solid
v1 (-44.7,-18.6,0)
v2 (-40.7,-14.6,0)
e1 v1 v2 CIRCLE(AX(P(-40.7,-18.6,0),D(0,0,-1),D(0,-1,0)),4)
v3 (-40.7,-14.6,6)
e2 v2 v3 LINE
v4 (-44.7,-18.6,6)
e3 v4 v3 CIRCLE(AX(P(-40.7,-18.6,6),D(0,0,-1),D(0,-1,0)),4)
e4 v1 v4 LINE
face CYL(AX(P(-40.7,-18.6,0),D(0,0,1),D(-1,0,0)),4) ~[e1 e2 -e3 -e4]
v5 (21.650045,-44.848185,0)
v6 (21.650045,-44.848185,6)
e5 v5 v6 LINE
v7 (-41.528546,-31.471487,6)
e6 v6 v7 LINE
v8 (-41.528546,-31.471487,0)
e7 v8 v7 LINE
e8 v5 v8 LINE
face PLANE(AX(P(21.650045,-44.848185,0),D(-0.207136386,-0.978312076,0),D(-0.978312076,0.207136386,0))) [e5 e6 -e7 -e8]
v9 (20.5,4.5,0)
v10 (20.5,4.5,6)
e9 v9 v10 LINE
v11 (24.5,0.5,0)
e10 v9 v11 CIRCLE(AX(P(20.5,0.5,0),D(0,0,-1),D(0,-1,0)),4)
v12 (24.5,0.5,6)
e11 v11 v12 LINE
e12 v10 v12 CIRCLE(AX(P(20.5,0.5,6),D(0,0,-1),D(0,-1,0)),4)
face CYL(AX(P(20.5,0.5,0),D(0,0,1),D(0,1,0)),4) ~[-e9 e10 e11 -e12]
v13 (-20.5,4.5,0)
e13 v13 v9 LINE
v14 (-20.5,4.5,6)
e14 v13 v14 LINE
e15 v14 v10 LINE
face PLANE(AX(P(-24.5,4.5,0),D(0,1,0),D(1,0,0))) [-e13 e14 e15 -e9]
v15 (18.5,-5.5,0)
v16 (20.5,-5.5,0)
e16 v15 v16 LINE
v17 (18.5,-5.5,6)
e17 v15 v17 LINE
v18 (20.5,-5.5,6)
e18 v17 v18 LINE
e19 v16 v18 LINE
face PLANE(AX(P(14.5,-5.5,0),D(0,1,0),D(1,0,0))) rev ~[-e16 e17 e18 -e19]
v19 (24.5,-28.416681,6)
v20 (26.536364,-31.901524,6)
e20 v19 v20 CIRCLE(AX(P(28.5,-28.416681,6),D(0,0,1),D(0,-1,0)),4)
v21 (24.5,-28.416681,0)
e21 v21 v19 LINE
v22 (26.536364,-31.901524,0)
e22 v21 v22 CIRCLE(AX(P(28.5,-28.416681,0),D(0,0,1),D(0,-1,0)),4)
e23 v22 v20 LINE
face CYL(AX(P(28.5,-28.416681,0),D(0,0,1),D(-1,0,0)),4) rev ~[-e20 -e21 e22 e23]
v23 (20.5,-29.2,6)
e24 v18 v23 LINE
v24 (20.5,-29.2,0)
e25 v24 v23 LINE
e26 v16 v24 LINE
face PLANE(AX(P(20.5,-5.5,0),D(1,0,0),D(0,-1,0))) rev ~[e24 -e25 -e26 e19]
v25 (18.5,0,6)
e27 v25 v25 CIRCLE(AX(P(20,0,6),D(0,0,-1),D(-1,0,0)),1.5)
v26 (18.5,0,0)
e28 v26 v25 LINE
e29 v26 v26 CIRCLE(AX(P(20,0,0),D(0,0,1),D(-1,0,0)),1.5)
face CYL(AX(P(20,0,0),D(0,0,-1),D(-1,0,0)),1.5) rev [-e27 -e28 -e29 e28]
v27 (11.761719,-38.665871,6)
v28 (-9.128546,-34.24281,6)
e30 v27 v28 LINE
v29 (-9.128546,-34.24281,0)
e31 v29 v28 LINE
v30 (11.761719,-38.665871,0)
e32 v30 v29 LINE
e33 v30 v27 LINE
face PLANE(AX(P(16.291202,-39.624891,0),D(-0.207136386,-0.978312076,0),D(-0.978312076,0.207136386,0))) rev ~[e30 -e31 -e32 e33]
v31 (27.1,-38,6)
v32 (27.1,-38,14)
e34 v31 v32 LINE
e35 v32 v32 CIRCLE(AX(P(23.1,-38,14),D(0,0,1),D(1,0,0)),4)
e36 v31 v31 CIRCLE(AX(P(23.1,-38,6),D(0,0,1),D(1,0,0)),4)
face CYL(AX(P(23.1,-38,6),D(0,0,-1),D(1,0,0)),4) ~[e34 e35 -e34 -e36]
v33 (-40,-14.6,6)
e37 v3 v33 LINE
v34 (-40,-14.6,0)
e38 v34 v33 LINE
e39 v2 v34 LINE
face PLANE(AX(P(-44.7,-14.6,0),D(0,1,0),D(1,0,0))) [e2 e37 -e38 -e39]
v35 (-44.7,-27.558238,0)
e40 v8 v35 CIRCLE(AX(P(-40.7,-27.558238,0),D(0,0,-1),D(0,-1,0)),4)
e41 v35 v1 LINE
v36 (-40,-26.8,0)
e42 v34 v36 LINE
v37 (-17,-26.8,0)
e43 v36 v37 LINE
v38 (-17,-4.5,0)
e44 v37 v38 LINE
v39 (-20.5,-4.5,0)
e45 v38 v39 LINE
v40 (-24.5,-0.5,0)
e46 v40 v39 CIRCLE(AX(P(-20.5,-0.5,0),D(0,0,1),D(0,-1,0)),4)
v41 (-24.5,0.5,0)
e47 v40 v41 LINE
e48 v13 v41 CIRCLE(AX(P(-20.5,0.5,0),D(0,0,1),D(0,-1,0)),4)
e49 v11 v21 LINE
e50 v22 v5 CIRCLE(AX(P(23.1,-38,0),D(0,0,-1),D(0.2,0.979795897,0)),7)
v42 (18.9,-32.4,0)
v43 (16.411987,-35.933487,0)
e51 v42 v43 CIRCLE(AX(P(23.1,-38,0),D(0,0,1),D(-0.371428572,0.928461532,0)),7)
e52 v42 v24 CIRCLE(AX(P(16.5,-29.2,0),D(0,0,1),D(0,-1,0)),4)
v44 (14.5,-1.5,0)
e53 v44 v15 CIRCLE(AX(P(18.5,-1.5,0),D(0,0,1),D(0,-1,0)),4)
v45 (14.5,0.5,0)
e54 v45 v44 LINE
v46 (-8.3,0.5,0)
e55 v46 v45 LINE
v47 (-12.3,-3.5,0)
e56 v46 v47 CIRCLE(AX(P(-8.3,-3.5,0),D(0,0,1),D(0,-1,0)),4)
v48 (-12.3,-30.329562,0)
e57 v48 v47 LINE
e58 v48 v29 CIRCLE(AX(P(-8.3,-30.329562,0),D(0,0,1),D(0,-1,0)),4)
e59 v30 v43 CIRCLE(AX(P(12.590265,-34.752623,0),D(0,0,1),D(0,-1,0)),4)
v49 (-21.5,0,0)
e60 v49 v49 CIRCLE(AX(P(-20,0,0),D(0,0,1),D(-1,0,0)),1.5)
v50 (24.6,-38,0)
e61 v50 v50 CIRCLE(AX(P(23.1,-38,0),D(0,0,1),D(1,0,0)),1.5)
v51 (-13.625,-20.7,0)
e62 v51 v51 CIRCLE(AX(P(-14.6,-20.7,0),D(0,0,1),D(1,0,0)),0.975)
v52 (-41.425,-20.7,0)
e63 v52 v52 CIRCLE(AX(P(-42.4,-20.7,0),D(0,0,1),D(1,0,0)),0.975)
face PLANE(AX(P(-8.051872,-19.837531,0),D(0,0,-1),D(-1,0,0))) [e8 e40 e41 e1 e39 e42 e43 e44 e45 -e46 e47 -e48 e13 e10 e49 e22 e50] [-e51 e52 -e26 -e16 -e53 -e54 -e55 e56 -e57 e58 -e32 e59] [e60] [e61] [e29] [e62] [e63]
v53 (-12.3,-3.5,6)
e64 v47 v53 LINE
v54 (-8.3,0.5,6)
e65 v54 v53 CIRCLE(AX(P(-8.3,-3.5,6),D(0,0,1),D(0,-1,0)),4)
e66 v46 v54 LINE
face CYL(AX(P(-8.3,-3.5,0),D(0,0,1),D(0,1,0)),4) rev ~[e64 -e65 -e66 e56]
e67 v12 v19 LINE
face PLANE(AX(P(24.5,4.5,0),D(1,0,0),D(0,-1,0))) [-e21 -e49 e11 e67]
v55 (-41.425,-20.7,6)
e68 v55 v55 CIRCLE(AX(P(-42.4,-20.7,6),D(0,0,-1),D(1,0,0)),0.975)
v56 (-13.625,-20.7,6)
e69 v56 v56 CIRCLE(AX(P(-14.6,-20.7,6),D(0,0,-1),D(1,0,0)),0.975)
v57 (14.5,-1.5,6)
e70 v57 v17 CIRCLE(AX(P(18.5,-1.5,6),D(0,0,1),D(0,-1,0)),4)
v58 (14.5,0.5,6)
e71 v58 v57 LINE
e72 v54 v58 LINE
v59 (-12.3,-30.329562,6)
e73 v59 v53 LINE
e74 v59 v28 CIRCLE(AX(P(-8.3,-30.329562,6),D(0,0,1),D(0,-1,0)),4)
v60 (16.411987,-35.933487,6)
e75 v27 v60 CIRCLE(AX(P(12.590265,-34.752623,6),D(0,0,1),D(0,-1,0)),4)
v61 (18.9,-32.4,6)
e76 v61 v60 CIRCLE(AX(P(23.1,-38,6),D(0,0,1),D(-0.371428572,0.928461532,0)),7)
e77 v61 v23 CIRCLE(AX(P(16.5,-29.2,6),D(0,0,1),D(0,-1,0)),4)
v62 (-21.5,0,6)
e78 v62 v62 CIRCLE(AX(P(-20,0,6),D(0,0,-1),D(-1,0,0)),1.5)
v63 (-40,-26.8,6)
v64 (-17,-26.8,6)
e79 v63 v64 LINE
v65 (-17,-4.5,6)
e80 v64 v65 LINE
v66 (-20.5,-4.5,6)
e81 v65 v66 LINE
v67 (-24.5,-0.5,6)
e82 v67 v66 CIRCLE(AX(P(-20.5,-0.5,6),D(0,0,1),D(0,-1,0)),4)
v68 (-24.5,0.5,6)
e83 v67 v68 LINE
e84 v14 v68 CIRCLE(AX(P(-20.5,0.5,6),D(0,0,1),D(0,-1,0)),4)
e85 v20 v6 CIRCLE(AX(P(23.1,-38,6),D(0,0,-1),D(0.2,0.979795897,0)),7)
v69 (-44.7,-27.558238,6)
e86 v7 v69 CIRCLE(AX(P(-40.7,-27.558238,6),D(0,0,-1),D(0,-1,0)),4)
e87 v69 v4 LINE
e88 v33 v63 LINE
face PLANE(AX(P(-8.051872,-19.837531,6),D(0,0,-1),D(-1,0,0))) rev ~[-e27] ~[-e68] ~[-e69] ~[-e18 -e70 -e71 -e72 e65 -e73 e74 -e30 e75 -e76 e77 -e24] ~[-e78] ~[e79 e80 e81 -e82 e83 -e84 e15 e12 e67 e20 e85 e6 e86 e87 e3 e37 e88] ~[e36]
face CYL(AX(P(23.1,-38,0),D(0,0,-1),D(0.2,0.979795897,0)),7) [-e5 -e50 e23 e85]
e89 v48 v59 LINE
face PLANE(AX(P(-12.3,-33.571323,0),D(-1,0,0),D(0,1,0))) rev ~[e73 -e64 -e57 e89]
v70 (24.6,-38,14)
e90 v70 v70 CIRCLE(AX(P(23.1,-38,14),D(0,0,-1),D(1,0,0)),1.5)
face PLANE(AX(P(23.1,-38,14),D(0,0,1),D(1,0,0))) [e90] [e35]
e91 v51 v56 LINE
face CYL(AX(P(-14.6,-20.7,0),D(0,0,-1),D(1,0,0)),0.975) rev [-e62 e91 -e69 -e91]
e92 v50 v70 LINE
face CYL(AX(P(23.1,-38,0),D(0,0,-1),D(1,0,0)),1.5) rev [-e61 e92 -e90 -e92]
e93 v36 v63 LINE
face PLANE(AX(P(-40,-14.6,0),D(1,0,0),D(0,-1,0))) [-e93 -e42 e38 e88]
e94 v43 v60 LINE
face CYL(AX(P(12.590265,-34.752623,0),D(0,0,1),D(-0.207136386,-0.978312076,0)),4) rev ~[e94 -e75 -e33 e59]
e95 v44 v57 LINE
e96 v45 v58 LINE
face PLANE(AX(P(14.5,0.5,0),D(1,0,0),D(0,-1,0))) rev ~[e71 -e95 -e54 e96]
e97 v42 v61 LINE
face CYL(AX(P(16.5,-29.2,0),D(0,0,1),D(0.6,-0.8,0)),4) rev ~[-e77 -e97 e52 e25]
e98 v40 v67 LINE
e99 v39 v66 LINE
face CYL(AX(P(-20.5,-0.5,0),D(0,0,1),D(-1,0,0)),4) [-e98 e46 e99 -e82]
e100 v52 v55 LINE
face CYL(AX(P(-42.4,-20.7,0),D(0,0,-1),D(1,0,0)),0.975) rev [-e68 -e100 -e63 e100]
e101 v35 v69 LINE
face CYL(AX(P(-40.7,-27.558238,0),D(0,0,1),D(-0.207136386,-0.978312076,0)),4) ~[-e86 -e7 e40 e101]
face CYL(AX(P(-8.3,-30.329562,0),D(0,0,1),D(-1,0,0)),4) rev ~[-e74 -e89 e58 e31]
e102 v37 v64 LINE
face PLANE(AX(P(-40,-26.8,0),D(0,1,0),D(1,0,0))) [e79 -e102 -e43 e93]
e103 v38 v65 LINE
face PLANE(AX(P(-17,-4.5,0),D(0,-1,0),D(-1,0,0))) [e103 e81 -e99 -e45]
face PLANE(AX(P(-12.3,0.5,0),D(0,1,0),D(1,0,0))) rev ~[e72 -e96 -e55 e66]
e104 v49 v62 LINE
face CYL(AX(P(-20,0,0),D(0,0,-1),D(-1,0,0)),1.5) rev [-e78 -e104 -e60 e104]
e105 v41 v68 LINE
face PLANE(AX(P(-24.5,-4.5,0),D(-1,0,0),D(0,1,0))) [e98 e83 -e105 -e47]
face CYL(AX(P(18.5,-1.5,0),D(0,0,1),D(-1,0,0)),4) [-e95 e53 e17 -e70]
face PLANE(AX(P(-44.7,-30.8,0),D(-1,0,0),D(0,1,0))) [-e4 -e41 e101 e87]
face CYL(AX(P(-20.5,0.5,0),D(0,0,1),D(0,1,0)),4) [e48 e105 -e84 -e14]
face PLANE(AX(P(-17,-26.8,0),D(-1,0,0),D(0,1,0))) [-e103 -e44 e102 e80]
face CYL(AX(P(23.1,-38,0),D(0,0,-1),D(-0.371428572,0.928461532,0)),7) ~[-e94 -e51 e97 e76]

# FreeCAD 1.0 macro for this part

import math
import FreeCAD as App
import Part
import Sketcher
Q = App.Units.Quantity


def edges_at(feature, points):
    """Names of the edges that pass closest to the given points."""
    edges = feature.Shape.Edges
    near = lambda p: min(range(len(edges)), key=lambda i: edges[i].distToShape(Part.Vertex(*p))[0])
    return sorted({f"Edge{near(p) + 1}" for p in points})

doc = App.newDocument("Part")
body = doc.addObject("PartDesign::Body", "Body")

sketch1 = body.newObject("Sketcher::SketchObject", "Sketch")
sketch1.AttachmentSupport = (doc.getObject("XY_Plane"), [""])
sketch1.MapMode = "FlatFace"
sketch1.addGeometry([
    Part.LineSegment(App.Vector(24.5, 4.5, 0), App.Vector(-24.5, 4.5, 0)),
    Part.LineSegment(App.Vector(-24.5, 4.5, 0), App.Vector(-24.5, -4.5, 0)),
    Part.LineSegment(App.Vector(-24.5, -4.5, 0), App.Vector(-17, -4.5, 0)),
    Part.LineSegment(App.Vector(-17, -4.5, 0), App.Vector(-17, -26.8, 0)),
    Part.LineSegment(App.Vector(-17, -26.8, 0), App.Vector(-40, -26.8, 0)),
    Part.LineSegment(App.Vector(-40, -26.8, 0), App.Vector(-40, -14.6, 0)),
    Part.LineSegment(App.Vector(-40, -14.6, 0), App.Vector(-44.7, -14.6, 0)),
    Part.LineSegment(App.Vector(-44.7, -14.6, 0), App.Vector(-44.7, -30.8, 0)),
    Part.LineSegment(App.Vector(-44.7, -30.8, 0), App.Vector(21.7, -44.8, 0)),
    Part.ArcOfCircle(Part.Circle(App.Vector(23.1, -38, 0), App.Vector(0, 0, 1), 7), math.radians(-102), math.radians(78)),
    Part.LineSegment(App.Vector(24.5, -31.1, 0), App.Vector(24.5, 4.5, 0)),
    Part.LineSegment(App.Vector(-12.3, 0.5, 0), App.Vector(14.5, 0.5, 0)),
    Part.LineSegment(App.Vector(14.5, 0.5, 0), App.Vector(14.5, -5.5, 0)),
    Part.LineSegment(App.Vector(14.5, -5.5, 0), App.Vector(20.5, -5.5, 0)),
    Part.LineSegment(App.Vector(20.5, -5.5, 0), App.Vector(20.5, -31.5, 0)),
    Part.ArcOfCircle(Part.Circle(App.Vector(23.1, -38, 0), App.Vector(0, 0, 1), 7), math.radians(112), math.radians(193)),
    Part.LineSegment(App.Vector(16.3, -39.6, 0), App.Vector(-12.3, -33.6, 0)),
    Part.LineSegment(App.Vector(-12.3, -33.6, 0), App.Vector(-12.3, 0.5, 0)),
], False)
sketch1.addConstraint([
    Sketcher.Constraint("Coincident", 0, 2, 1, 1),
    Sketcher.Constraint("Coincident", 1, 2, 2, 1),
    Sketcher.Constraint("Coincident", 2, 2, 3, 1),
    Sketcher.Constraint("Coincident", 3, 2, 4, 1),
    Sketcher.Constraint("Coincident", 4, 2, 5, 1),
    Sketcher.Constraint("Coincident", 5, 2, 6, 1),
    Sketcher.Constraint("Coincident", 6, 2, 7, 1),
    Sketcher.Constraint("Coincident", 7, 2, 8, 1),
    Sketcher.Constraint("Tangent", 8, 2, 9, 1),
    Sketcher.Constraint("Coincident", 9, 2, 10, 1),
    Sketcher.Constraint("Coincident", 10, 2, 0, 1),
    Sketcher.Constraint("Coincident", 11, 2, 12, 1),
    Sketcher.Constraint("Coincident", 12, 2, 13, 1),
    Sketcher.Constraint("Coincident", 13, 2, 14, 1),
    Sketcher.Constraint("Coincident", 14, 2, 15, 1),
    Sketcher.Constraint("Coincident", 15, 2, 16, 1),
    Sketcher.Constraint("Coincident", 16, 2, 17, 1),
    Sketcher.Constraint("Coincident", 17, 2, 11, 1),
    Sketcher.Constraint("Horizontal", 0),
    Sketcher.Constraint("Vertical", 1),
    Sketcher.Constraint("Horizontal", 2),
    Sketcher.Constraint("Vertical", 3),
    Sketcher.Constraint("Horizontal", 4),
    Sketcher.Constraint("Vertical", 5),
    Sketcher.Constraint("Horizontal", 6),
    Sketcher.Constraint("Vertical", 7),
    Sketcher.Constraint("Vertical", 10),
    Sketcher.Constraint("Horizontal", 11),
    Sketcher.Constraint("Vertical", 12),
    Sketcher.Constraint("Horizontal", 13),
    Sketcher.Constraint("Vertical", 14),
    Sketcher.Constraint("Vertical", 17),
    Sketcher.Constraint("Coincident", 15, 3, 9, 3),
    Sketcher.Constraint("Equal", 9, 15),
    Sketcher.Constraint("Symmetric", 1, 2, 10, 2, -1, 1),
    Sketcher.Constraint("Parallel", 8, 16),
    Sketcher.Constraint("Equal", 13, 12),
    Sketcher.Constraint("Radius", 9, Q("7 mm")),
    Sketcher.Constraint("DistanceX", 0, 2, 0, 1, Q("49 mm")),
    Sketcher.Constraint("DistanceX", 4, 2, 4, 1, Q("23 mm")),
    Sketcher.Constraint("DistanceX", 13, 1, 13, 2, Q("6 mm")),
    Sketcher.Constraint("DistanceY", 1, 2, 1, 1, Q("9 mm")),
    Sketcher.Constraint("DistanceX", 2, 1, 2, 2, Q("7.5 mm")),
    Sketcher.Constraint("DistanceX", 6, 2, 6, 1, Q("4.7 mm")),
    Sketcher.Constraint("DistanceX", 11, 1, 11, 2, Q("26.8 mm")),
    Sketcher.Constraint("DistanceY", 3, 2, 3, 1, Q("22.3 mm")),
    Sketcher.Constraint("DistanceY", 5, 1, 5, 2, Q("12.2 mm")),
    Sketcher.Constraint("DistanceY", 7, 2, 7, 1, Q("16.2 mm")),
    Sketcher.Constraint("DistanceY", 9, 3, -1, 1, Q("38 mm")),
    Sketcher.Constraint("DistanceX", 11, 2, 10, 2, Q("10 mm")),
    Sketcher.Constraint("DistanceY", 11, 2, 10, 2, Q("4 mm")),
    Sketcher.Constraint("DistanceX", -1, 1, 9, 3, Q("23.1 mm")),
    Sketcher.Constraint("DistanceX", -1, 1, 15, 2, Q("16.291202 mm")),
])
pad1 = body.newObject("PartDesign::Pad", "Pad")
pad1.Profile = sketch1
pad1.Length = 6

sketch2 = body.newObject("Sketcher::SketchObject", "Sketch001")
sketch2.AttachmentSupport = (doc.getObject("XY_Plane"), [""])
sketch2.MapMode = "FlatFace"
sketch2.addGeometry(Part.Circle(App.Vector(20, 0, 0), App.Vector(0, 0, 1), 1.5), False)
sketch2.addConstraint([
    Sketcher.Constraint("PointOnObject", 0, 3, -1),
    Sketcher.Constraint("Diameter", 0, Q("3 mm")),
    Sketcher.Constraint("DistanceX", -1, 1, 0, 3, Q("20 mm")),
])
pocket1 = body.newObject("PartDesign::Pocket", "Pocket")
pocket1.Profile = sketch2
pocket1.Type = "UpToFirst"
pocket1.Reversed = True

sketch3 = body.newObject("Sketcher::SketchObject", "Sketch002")
sketch3.AttachmentSupport = (doc.getObject("XY_Plane"), [""])
sketch3.MapMode = "FlatFace"
sketch3.addGeometry(Part.Circle(App.Vector(-20, 0, 0), App.Vector(0, 0, 1), 1.5), False)
sketch3.addConstraint([
    Sketcher.Constraint("PointOnObject", 0, 3, -1),
    Sketcher.Constraint("Diameter", 0, Q("3 mm")),
    Sketcher.Constraint("DistanceX", 0, 3, -1, 1, Q("20 mm")),
])
pocket2 = body.newObject("PartDesign::Pocket", "Pocket001")
pocket2.Profile = sketch3
pocket2.Type = "UpToFirst"
pocket2.Reversed = True

sketch4 = body.newObject("Sketcher::SketchObject", "Sketch003")
sketch4.AttachmentSupport = (doc.getObject("XY_Plane"), [""])
sketch4.MapMode = "FlatFace"
sketch4.AttachmentOffset = App.Placement(App.Vector(0, 0, 6), App.Rotation())
sketch4.addGeometry(Part.Circle(App.Vector(23.1, -38, 0), App.Vector(0, 0, 1), 4), False)
sketch4.addConstraint([
    Sketcher.Constraint("Diameter", 0, Q("8 mm")),
    Sketcher.Constraint("DistanceY", 0, 3, -1, 1, Q("38 mm")),
    Sketcher.Constraint("DistanceX", -1, 1, 0, 3, Q("23.1 mm")),
])
pad2 = body.newObject("PartDesign::Pad", "Pad001")
pad2.Profile = sketch4
pad2.Length = 8

sketch5 = body.newObject("Sketcher::SketchObject", "Sketch004")
sketch5.AttachmentSupport = (doc.getObject("XY_Plane"), [""])
sketch5.MapMode = "FlatFace"
sketch5.addGeometry(Part.Circle(App.Vector(23.1, -38, 0), App.Vector(0, 0, 1), 1.5), False)
sketch5.addConstraint([
    Sketcher.Constraint("Diameter", 0, Q("3 mm")),
    Sketcher.Constraint("DistanceY", 0, 3, -1, 1, Q("38 mm")),
    Sketcher.Constraint("DistanceX", -1, 1, 0, 3, Q("23.1 mm")),
])
pocket3 = body.newObject("PartDesign::Pocket", "Pocket002")
pocket3.Profile = sketch5
pocket3.Type = "ThroughAll"
pocket3.Reversed = True

sketch6 = body.newObject("Sketcher::SketchObject", "Sketch005")
sketch6.AttachmentSupport = (doc.getObject("XY_Plane"), [""])
sketch6.MapMode = "FlatFace"
sketch6.addGeometry([
    Part.Circle(App.Vector(-14.6, -20.7, 0), App.Vector(0, 0, 1), 1),
    Part.Circle(App.Vector(-42.4, -20.7, 0), App.Vector(0, 0, 1), 1),
], False)
sketch6.addConstraint([
    Sketcher.Constraint("Equal", 0, 1),
    Sketcher.Constraint("Horizontal", 0, 3, 1, 3),
    Sketcher.Constraint("Diameter", 0, Q("1.95 mm")),
    Sketcher.Constraint("DistanceX", 0, 3, -1, 1, Q("14.6 mm")),
    Sketcher.Constraint("DistanceY", 0, 3, -1, 1, Q("20.7 mm")),
    Sketcher.Constraint("DistanceX", 1, 3, -1, 1, Q("42.4 mm")),
])
pocket4 = body.newObject("PartDesign::Pocket", "Pocket003")
pocket4.Profile = sketch6
pocket4.Type = "ThroughAll"
pocket4.Reversed = True
doc.recompute()

fillet = body.newObject("PartDesign::Fillet", "Fillet")
fillet.Base = (pocket4, edges_at(pocket4, [
    (-24.5, -4.5, 3),
    (-24.5, 4.5, 3),
    (24.5, 4.5, 3),
    (24.5, -31.141, 3),
    (-44.7, -30.8, 3),
    (-44.7, -14.6, 3),
    (14.5, -5.5, 3),
    (-12.3, 0.5, 3),
    (-12.3, -33.571, 3),
    (16.291, -39.625, 3),
    (20.5, -31.501, 3),
]))
fillet.Radius = 4

doc.recompute()
